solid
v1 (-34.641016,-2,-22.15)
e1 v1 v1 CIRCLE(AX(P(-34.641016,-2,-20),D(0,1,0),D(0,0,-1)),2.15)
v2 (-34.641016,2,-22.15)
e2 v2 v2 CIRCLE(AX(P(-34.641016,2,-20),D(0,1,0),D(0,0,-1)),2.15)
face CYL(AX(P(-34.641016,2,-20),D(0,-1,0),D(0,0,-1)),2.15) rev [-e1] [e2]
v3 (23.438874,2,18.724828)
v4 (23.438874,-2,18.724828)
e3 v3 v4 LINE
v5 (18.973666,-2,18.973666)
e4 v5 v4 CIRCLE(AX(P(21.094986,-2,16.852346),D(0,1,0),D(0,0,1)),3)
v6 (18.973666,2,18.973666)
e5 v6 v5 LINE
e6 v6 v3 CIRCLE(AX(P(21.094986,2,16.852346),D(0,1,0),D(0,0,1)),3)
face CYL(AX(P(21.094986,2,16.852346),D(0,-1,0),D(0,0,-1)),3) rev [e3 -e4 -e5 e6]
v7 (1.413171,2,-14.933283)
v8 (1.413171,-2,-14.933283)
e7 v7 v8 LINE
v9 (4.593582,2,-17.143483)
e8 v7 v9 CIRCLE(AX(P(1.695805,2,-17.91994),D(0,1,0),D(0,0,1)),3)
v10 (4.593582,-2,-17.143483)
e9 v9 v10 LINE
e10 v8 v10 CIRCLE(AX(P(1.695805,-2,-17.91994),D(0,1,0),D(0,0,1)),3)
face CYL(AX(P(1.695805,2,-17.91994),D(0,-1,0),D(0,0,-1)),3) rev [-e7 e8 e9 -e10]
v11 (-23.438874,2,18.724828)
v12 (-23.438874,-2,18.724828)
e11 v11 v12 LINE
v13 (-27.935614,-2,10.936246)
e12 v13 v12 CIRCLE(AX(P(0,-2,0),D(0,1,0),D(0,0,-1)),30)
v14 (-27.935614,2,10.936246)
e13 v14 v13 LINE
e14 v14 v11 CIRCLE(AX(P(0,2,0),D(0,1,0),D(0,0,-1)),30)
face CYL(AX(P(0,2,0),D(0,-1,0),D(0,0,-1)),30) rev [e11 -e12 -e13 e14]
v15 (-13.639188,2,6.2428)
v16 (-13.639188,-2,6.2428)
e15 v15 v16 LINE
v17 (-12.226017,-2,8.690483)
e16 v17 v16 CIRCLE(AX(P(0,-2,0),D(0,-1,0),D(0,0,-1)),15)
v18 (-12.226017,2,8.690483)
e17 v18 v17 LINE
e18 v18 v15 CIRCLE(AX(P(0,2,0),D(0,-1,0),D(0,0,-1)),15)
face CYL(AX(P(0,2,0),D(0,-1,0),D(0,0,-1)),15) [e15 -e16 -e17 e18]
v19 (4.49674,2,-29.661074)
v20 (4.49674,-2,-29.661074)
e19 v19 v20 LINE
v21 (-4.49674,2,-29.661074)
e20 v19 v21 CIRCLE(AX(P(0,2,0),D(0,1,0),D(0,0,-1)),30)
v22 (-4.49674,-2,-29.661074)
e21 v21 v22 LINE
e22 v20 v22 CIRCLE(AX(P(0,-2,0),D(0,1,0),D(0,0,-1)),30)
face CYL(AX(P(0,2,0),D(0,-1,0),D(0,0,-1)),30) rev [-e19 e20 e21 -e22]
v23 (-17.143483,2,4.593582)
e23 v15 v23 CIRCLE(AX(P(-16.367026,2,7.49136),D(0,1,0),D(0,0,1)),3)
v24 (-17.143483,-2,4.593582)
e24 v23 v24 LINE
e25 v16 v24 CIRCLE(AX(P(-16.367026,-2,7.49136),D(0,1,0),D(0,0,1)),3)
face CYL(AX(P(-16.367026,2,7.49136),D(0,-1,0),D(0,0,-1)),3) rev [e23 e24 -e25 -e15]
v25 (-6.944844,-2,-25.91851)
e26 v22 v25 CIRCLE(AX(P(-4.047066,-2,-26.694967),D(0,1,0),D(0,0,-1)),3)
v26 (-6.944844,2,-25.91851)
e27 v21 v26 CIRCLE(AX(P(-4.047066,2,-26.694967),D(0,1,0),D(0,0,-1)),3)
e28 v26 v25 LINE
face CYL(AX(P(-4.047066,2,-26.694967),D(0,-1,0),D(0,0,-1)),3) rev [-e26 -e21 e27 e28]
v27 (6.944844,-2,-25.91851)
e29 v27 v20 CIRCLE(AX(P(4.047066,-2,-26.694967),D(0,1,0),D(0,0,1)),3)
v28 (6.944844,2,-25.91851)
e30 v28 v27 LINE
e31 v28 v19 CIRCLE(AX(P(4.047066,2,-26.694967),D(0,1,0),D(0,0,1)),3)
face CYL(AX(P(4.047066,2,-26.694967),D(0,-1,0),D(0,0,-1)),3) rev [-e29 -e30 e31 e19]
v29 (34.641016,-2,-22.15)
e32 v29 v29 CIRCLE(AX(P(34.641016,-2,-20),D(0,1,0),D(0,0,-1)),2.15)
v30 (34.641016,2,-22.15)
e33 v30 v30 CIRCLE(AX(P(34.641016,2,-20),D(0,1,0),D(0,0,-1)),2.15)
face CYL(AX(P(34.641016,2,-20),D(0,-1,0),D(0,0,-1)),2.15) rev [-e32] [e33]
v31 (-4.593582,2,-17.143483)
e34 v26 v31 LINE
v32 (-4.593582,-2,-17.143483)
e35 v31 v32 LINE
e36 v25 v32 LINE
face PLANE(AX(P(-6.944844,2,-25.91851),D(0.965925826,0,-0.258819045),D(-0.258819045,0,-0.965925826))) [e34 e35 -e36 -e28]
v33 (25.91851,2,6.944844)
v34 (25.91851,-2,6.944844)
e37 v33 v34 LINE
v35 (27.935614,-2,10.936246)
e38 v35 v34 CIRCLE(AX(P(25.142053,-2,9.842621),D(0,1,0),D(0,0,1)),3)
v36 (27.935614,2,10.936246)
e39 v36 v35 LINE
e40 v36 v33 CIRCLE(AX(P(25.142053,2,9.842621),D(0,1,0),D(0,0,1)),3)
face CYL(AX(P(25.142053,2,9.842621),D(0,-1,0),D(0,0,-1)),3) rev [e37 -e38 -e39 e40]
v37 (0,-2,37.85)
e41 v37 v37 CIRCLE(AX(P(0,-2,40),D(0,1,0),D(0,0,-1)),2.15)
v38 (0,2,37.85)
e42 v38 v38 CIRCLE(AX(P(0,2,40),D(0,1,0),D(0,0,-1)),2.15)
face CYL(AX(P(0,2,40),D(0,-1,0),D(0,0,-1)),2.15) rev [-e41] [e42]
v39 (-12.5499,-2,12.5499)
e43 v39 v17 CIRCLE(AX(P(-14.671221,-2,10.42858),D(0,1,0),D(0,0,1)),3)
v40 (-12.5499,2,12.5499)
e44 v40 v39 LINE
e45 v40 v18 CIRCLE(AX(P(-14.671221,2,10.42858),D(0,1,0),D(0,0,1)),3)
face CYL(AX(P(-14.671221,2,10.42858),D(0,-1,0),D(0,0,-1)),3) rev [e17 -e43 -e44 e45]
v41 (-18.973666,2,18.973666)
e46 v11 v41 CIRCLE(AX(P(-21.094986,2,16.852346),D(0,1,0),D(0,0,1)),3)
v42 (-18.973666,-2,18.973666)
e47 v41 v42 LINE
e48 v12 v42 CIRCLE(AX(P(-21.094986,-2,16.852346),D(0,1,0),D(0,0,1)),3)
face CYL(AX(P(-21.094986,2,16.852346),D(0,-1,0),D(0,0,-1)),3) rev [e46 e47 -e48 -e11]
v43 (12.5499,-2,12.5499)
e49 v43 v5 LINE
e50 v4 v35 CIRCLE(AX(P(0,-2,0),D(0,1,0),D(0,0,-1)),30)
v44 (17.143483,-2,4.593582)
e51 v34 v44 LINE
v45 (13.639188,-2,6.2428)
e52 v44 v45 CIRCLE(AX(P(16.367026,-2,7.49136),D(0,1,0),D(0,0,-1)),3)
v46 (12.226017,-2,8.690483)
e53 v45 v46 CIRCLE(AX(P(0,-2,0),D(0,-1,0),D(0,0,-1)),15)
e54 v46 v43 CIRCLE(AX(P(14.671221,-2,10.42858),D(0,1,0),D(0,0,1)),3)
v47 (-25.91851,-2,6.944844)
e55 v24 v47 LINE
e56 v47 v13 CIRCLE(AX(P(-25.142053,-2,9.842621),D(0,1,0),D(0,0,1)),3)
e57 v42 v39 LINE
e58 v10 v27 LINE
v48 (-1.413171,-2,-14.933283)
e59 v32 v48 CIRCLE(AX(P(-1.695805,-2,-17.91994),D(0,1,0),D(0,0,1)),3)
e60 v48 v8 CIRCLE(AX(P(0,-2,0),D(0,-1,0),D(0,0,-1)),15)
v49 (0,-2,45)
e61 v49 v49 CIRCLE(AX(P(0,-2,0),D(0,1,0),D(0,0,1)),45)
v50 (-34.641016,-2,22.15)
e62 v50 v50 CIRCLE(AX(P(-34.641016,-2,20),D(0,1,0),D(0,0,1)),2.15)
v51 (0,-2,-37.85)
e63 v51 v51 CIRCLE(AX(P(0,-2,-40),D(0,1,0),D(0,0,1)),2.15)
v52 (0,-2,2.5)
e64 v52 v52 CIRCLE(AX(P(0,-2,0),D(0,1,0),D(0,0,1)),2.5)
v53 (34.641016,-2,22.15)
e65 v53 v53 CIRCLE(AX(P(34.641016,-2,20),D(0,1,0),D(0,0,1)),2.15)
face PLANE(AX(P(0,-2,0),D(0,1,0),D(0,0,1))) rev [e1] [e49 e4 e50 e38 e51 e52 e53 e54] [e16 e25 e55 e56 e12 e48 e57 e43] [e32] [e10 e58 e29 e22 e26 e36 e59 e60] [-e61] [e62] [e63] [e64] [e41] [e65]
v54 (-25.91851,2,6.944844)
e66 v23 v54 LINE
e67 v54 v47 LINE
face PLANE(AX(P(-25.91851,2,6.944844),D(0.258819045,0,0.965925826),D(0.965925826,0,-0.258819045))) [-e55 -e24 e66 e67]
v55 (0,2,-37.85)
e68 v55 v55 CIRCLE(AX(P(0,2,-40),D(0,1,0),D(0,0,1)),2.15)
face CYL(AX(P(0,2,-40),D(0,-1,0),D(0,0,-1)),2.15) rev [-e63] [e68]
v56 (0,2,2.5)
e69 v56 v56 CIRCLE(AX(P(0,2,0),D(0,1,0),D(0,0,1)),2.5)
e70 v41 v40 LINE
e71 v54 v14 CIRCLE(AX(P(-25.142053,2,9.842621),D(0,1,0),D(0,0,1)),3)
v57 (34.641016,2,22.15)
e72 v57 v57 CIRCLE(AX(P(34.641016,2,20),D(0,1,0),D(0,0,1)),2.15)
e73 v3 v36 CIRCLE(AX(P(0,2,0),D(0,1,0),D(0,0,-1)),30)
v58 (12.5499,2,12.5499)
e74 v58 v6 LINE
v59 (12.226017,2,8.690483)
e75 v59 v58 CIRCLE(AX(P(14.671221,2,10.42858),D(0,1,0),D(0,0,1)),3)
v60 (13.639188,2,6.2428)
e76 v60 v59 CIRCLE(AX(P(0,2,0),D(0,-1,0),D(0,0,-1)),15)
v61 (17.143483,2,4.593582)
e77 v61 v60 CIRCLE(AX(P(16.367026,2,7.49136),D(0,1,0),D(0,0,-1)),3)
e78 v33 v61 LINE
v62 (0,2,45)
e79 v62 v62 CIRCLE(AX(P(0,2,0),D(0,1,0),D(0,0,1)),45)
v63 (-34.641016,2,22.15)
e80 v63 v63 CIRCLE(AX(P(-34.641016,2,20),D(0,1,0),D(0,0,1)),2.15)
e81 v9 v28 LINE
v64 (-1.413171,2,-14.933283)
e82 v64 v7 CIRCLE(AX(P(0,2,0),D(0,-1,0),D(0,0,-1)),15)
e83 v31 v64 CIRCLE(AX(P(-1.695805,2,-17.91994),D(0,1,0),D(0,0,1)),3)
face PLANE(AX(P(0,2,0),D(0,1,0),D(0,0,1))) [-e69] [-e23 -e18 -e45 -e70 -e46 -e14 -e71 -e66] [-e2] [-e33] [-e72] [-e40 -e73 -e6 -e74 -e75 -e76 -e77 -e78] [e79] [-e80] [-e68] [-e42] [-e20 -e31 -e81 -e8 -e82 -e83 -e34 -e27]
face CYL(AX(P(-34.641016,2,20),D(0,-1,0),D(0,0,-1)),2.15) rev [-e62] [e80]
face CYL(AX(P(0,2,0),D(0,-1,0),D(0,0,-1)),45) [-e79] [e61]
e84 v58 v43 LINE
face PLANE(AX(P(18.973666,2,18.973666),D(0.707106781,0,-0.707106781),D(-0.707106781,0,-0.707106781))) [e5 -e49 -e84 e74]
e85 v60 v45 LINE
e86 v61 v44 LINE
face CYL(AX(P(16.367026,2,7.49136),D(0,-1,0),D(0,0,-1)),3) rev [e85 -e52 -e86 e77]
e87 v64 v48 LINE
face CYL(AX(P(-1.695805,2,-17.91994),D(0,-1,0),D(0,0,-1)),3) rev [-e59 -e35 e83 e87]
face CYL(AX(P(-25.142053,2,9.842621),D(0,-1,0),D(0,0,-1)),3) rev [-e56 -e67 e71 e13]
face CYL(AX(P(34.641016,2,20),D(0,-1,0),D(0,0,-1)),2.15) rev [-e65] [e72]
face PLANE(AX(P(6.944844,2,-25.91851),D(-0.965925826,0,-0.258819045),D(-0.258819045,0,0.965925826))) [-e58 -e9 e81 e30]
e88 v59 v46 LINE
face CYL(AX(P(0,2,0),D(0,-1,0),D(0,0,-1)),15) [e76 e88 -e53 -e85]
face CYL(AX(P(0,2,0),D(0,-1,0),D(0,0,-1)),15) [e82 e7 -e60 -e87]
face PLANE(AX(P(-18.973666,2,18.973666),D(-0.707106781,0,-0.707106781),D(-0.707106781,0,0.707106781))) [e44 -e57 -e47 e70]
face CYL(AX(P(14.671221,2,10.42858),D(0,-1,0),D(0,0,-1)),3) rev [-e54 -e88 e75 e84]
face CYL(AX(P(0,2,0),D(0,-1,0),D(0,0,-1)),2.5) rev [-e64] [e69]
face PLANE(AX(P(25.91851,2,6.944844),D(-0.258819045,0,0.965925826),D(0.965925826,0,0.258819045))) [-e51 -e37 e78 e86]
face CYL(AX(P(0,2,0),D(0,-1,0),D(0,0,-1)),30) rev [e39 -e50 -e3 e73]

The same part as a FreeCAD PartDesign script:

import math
import FreeCAD as App
import Part
import Sketcher

V = App.Vector
Q = App.Units.Quantity

doc = App.newDocument("Part")
params = doc.addObject("Spreadsheet::Sheet", "Params")
for row, (alias, value) in enumerate([
    ("sketch1_diameter", "90 mm"),
    ("sketch1_diameter2", "5 mm"),
    ("sketch1_radius", "3 mm"),
    ("sketch1_radius2", "30 mm"),
    ("sketch1_radius3", "15 mm"),
    ("pad1_length", "4 mm"),
], start=1):
    params.set(f"A{row}", alias)
    params.set(f"B{row}", "=" + value)
    params.setAlias(f"B{row}", alias)

body = doc.addObject("PartDesign::Body", "Body")

sketch1 = doc.addObject("Sketcher::SketchObject", "Sketch")
body.addObject(sketch1)
sketch1.AttachmentSupport = (doc.XZ_Plane, [""])
sketch1.MapMode = "FlatFace"
sketch1.addGeometry(Part.Circle(V(0, 0, 0), V(0, 0, 1), 45), False)
sketch1.addGeometry(Part.Circle(V(-34.6, -20, 0), V(0, 0, 1), 2.1), False)
sketch1.addGeometry(Part.Circle(V(0, -40, 0), V(0, 0, 1), 2.1), False)
sketch1.addGeometry(Part.LineSegment(V(-4.6, -17.1, 0), V(-6.9, -25.9, 0)), False)
sketch1.addGeometry(Part.ArcOfCircle(Part.Circle(V(-4, -26.7, 0), V(0, 0, 1), 3), math.radians(165), math.radians(261)), False)
sketch1.addGeometry(Part.ArcOfCircle(Part.Circle(V(0, 0, 0), V(0, 0, 1), 30), math.radians(-98.62), math.radians(-81.38)), False)
sketch1.addGeometry(Part.ArcOfCircle(Part.Circle(V(4, -26.7, 0), V(0, 0, 1), 3), math.radians(-81), math.radians(15)), False)
sketch1.addGeometry(Part.LineSegment(V(6.9, -25.9, 0), V(4.6, -17.1, 0)), False)
sketch1.addGeometry(Part.ArcOfCircle(Part.Circle(V(1.7, -17.9, 0), V(0, 0, 1), 3), math.radians(15), math.radians(95)), False)
sketch1.addGeometry(Part.ArcOfCircle(Part.Circle(V(0, 0, 0), V(0, 0, 1), 15), math.radians(-95.41), math.radians(-84.59)), False)
sketch1.addGeometry(Part.ArcOfCircle(Part.Circle(V(-1.7, -17.9, 0), V(0, 0, 1), 3), math.radians(85), math.radians(165)), False)
sketch1.addGeometry(Part.Circle(V(-34.6, 20, 0), V(0, 0, 1), 2.1), False)
sketch1.addGeometry(Part.ArcOfCircle(Part.Circle(V(-25.1, 9.8, 0), V(0, 0, 1), 3), math.radians(159), math.radians(255)), False)
sketch1.addGeometry(Part.LineSegment(V(-25.9, 6.9, 0), V(-17.1, 4.6, 0)), False)
sketch1.addGeometry(Part.ArcOfCircle(Part.Circle(V(-16.4, 7.5, 0), V(0, 0, 1), 3), math.radians(-105), math.radians(-25)), False)
sketch1.addGeometry(Part.ArcOfCircle(Part.Circle(V(0, 0, 0), V(0, 0, 1), 15), math.radians(144.59), math.radians(155.41)), False)
sketch1.addGeometry(Part.ArcOfCircle(Part.Circle(V(-14.7, 10.4, 0), V(0, 0, 1), 3), math.radians(-35), math.radians(45)), False)
sketch1.addGeometry(Part.LineSegment(V(-12.5, 12.5, 0), V(-19, 19, 0)), False)
sketch1.addGeometry(Part.ArcOfCircle(Part.Circle(V(-21.1, 16.9, 0), V(0, 0, 1), 3), math.radians(45), math.radians(141)), False)
sketch1.addGeometry(Part.ArcOfCircle(Part.Circle(V(0, 0, 0), V(0, 0, 1), 30), math.radians(141.38), math.radians(158.62)), False)
sketch1.addGeometry(Part.Circle(V(34.6, -20, 0), V(0, 0, 1), 2.1), False)
sketch1.addGeometry(Part.Circle(V(0, 0, 0), V(0, 0, 1), 2.5), False)
sketch1.addGeometry(Part.Circle(V(0, 40, 0), V(0, 0, 1), 2.1), False)
sketch1.addGeometry(Part.ArcOfCircle(Part.Circle(V(21.1, 16.9, 0), V(0, 0, 1), 3), math.radians(39), math.radians(135)), False)
sketch1.addGeometry(Part.LineSegment(V(19, 19, 0), V(12.5, 12.5, 0)), False)
sketch1.addGeometry(Part.ArcOfCircle(Part.Circle(V(14.7, 10.4, 0), V(0, 0, 1), 3), math.radians(135), math.radians(215)), False)
sketch1.addGeometry(Part.ArcOfCircle(Part.Circle(V(0, 0, 0), V(0, 0, 1), 15), math.radians(24.59), math.radians(35.41)), False)
sketch1.addGeometry(Part.ArcOfCircle(Part.Circle(V(16.4, 7.5, 0), V(0, 0, 1), 3), math.radians(-155), math.radians(-75)), False)
sketch1.addGeometry(Part.LineSegment(V(17.1, 4.6, 0), V(25.9, 6.9, 0)), False)
sketch1.addGeometry(Part.ArcOfCircle(Part.Circle(V(25.1, 9.8, 0), V(0, 0, 1), 3), math.radians(-75), math.radians(21)), False)
sketch1.addGeometry(Part.ArcOfCircle(Part.Circle(V(0, 0, 0), V(0, 0, 1), 30), math.radians(21.38), math.radians(38.62)), False)
sketch1.addGeometry(Part.Circle(V(34.6, 20, 0), V(0, 0, 1), 2.1), False)
sketch1.addConstraint(Sketcher.Constraint("Tangent", 3, 2, 4, 1))
sketch1.addConstraint(Sketcher.Constraint("Tangent", 4, 2, 5, 1))
sketch1.addConstraint(Sketcher.Constraint("Tangent", 5, 2, 6, 1))
sketch1.addConstraint(Sketcher.Constraint("Tangent", 6, 2, 7, 1))
sketch1.addConstraint(Sketcher.Constraint("Tangent", 7, 2, 8, 1))
sketch1.addConstraint(Sketcher.Constraint("Tangent", 8, 2, 9, 2))
sketch1.addConstraint(Sketcher.Constraint("Tangent", 9, 1, 10, 1))
sketch1.addConstraint(Sketcher.Constraint("Tangent", 10, 2, 3, 1))
sketch1.addConstraint(Sketcher.Constraint("Tangent", 12, 2, 13, 1))
sketch1.addConstraint(Sketcher.Constraint("Tangent", 13, 2, 14, 1))
sketch1.addConstraint(Sketcher.Constraint("Tangent", 14, 2, 15, 2))
sketch1.addConstraint(Sketcher.Constraint("Tangent", 15, 1, 16, 1))
sketch1.addConstraint(Sketcher.Constraint("Tangent", 16, 2, 17, 1))
sketch1.addConstraint(Sketcher.Constraint("Tangent", 17, 2, 18, 1))
sketch1.addConstraint(Sketcher.Constraint("Tangent", 18, 2, 19, 1))
sketch1.addConstraint(Sketcher.Constraint("Tangent", 19, 2, 12, 1))
sketch1.addConstraint(Sketcher.Constraint("Tangent", 23, 2, 24, 1))
sketch1.addConstraint(Sketcher.Constraint("Tangent", 24, 2, 25, 1))
sketch1.addConstraint(Sketcher.Constraint("Tangent", 25, 2, 26, 2))
sketch1.addConstraint(Sketcher.Constraint("Tangent", 26, 1, 27, 1))
sketch1.addConstraint(Sketcher.Constraint("Tangent", 27, 2, 28, 1))
sketch1.addConstraint(Sketcher.Constraint("Tangent", 28, 2, 29, 1))
sketch1.addConstraint(Sketcher.Constraint("Tangent", 29, 2, 30, 1))
sketch1.addConstraint(Sketcher.Constraint("Tangent", 30, 2, 23, 1))
sketch1.addConstraint(Sketcher.Constraint("Coincident", 0, 3, -1, 1))
sketch1.addConstraint(Sketcher.Constraint("Coincident", 5, 3, -1, 1))
sketch1.addConstraint(Sketcher.Constraint("Coincident", 9, 3, -1, 1))
sketch1.addConstraint(Sketcher.Constraint("Coincident", 15, 3, -1, 1))
sketch1.addConstraint(Sketcher.Constraint("Coincident", 19, 3, -1, 1))
sketch1.addConstraint(Sketcher.Constraint("Coincident", 21, 3, -1, 1))
sketch1.addConstraint(Sketcher.Constraint("Coincident", 26, 3, -1, 1))
sketch1.addConstraint(Sketcher.Constraint("Coincident", 30, 3, -1, 1))
sketch1.addConstraint(Sketcher.Constraint("Equal", 1, 2))
sketch1.addConstraint(Sketcher.Constraint("Equal", 4, 6))
sketch1.addConstraint(Sketcher.Constraint("Equal", 6, 8))
sketch1.addConstraint(Sketcher.Constraint("Equal", 8, 10))
sketch1.addConstraint(Sketcher.Constraint("Equal", 2, 11))
sketch1.addConstraint(Sketcher.Constraint("Equal", 10, 12))
sketch1.addConstraint(Sketcher.Constraint("Equal", 12, 14))
sketch1.addConstraint(Sketcher.Constraint("Equal", 9, 15))
sketch1.addConstraint(Sketcher.Constraint("Equal", 14, 16))
sketch1.addConstraint(Sketcher.Constraint("Equal", 16, 18))
sketch1.addConstraint(Sketcher.Constraint("Equal", 5, 19))
sketch1.addConstraint(Sketcher.Constraint("Equal", 11, 20))
sketch1.addConstraint(Sketcher.Constraint("Equal", 20, 22))
sketch1.addConstraint(Sketcher.Constraint("Equal", 18, 23))
sketch1.addConstraint(Sketcher.Constraint("Equal", 23, 25))
sketch1.addConstraint(Sketcher.Constraint("Equal", 15, 26))
sketch1.addConstraint(Sketcher.Constraint("Equal", 25, 27))
sketch1.addConstraint(Sketcher.Constraint("Equal", 27, 29))
sketch1.addConstraint(Sketcher.Constraint("Equal", 19, 30))
sketch1.addConstraint(Sketcher.Constraint("Equal", 22, 31))
sketch1.addConstraint(Sketcher.Constraint("Symmetric", 11, 3, 20, 3, -1, 1))
sketch1.addConstraint(Sketcher.Constraint("Symmetric", 2, 3, 22, 3, -1, 1))
sketch1.addConstraint(Sketcher.Constraint("Symmetric", 1, 3, 31, 3, -1, 1))
sketch1.addConstraint(Sketcher.Constraint("Symmetric", 1, 3, 20, 3, -2))
sketch1.addConstraint(Sketcher.Constraint("Symmetric", 3, 2, 6, 2, -2))
sketch1.addConstraint(Sketcher.Constraint("Symmetric", 17, 2, 23, 2, -2))
sketch1.addConstraint(Sketcher.Constraint("Symmetric", 13, 2, 27, 2, -2))
sketch1.addConstraint(Sketcher.Constraint("PointOnObject", 2, 3, -2))
sketch1.addConstraint(Sketcher.Constraint("Perpendicular", 3, 13))
sketch1.addConstraint(Sketcher.Constraint("Perpendicular", 17, 24))
sketch1.addConstraint(Sketcher.Constraint("Equal", 7, 13))
sketch1.addConstraint(Sketcher.Constraint("Equal", 13, 17))
sketch1.addConstraint(Sketcher.Constraint("Diameter", 0, 90.0))
sketch1.addConstraint(Sketcher.Constraint("Diameter", 21, 5.0))
sketch1.addConstraint(Sketcher.Constraint("Radius", 4, 3.0))
sketch1.addConstraint(Sketcher.Constraint("Radius", 5, 30.0))
sketch1.addConstraint(Sketcher.Constraint("Radius", 9, 15.0))
sketch1.addConstraint(Sketcher.Constraint("Diameter", 1, 4.3))
sketch1.addConstraint(Sketcher.Constraint("Angle", 3, Q("-105 deg")))
sketch1.addConstraint(Sketcher.Constraint("DistanceY", 1, 3, -1, 1, 20.0))
sketch1.addConstraint(Sketcher.Constraint("DistanceY", 2, 3, -1, 1, 40.0))
sketch1.addConstraint(Sketcher.Constraint("DistanceY", -1, 1, 14, 2, 6.2428))
sketch1.addConstraint(Sketcher.Constraint("DistanceX", 1, 3, 4, 3, 30.59395))
sketch1.setExpression("Constraints[64]", "Params.sketch1_diameter")
sketch1.setExpression("Constraints[65]", "Params.sketch1_diameter2")
sketch1.setExpression("Constraints[66]", "Params.sketch1_radius")
sketch1.setExpression("Constraints[67]", "Params.sketch1_radius2")
sketch1.setExpression("Constraints[68]", "Params.sketch1_radius3")
pad1 = doc.addObject("PartDesign::Pad", "Pad")
body.addObject(pad1)
pad1.Profile = sketch1
pad1.setExpression("Length", "Params.pad1_length")
pad1.Midplane = True

doc.recompute()
